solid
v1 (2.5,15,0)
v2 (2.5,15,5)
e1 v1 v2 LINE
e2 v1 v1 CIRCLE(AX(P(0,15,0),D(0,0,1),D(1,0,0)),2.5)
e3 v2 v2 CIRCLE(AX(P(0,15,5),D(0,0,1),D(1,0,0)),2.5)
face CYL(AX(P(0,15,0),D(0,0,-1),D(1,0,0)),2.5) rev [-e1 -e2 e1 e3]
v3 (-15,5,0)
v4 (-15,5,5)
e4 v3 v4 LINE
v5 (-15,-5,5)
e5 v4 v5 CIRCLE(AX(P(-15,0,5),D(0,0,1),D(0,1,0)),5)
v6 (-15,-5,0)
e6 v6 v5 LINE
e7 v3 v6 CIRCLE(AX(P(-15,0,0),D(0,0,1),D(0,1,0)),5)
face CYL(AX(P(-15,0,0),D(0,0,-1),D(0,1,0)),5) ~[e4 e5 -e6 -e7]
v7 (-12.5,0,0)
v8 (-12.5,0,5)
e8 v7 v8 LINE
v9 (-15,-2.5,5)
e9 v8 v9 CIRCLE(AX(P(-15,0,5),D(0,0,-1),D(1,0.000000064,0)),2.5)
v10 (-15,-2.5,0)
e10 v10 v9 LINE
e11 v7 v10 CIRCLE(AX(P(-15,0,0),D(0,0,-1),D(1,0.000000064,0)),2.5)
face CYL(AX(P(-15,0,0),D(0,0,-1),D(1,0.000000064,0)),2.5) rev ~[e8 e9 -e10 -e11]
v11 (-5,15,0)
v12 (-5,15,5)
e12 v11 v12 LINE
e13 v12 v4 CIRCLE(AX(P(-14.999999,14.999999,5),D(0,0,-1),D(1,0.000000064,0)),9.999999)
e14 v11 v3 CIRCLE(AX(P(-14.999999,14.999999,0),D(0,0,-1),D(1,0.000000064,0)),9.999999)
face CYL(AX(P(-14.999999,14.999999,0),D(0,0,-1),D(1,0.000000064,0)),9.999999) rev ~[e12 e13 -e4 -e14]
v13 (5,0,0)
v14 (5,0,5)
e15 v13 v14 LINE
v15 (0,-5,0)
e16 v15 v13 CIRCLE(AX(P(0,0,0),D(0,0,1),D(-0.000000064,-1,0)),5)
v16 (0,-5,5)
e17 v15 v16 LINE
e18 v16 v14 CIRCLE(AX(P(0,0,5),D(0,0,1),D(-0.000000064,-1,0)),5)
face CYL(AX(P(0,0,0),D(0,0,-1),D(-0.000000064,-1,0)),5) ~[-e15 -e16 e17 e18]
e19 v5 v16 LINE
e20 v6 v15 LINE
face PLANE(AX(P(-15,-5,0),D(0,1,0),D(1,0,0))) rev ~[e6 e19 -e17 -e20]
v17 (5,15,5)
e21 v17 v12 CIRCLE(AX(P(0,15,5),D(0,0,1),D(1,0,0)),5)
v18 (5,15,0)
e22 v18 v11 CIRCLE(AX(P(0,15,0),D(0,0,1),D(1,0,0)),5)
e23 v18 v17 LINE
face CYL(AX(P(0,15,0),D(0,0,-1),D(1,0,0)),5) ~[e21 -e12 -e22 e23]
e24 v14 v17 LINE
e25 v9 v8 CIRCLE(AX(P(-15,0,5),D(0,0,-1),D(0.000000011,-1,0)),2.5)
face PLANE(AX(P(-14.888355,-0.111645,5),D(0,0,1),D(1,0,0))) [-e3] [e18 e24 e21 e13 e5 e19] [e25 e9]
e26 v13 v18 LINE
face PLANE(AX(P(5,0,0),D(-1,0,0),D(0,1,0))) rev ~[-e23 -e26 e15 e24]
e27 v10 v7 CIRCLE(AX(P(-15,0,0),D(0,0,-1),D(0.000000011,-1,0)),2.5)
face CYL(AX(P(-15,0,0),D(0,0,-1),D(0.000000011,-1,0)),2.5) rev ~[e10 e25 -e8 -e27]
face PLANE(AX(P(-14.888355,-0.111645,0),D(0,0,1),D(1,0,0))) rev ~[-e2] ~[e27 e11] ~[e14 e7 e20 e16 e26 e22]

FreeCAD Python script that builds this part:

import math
import FreeCAD as App
import Part
import Sketcher

V = App.Vector
Q = App.Units.Quantity

doc = App.newDocument("Part")
params = doc.addObject("Spreadsheet::Sheet", "Params")
for row, (alias, value) in enumerate([
    ("sketch1_diameter", "5 mm"),
    ("sketch1_radius", "5 mm"),
    ("sketch1_radius2", "9.999999 mm"),
    ("pad1_length", "5 mm"),
], start=1):
    params.set(f"A{row}", alias)
    params.set(f"B{row}", "=" + value)
    params.setAlias(f"B{row}", alias)

body = doc.addObject("PartDesign::Body", "Body")

# Sketch on XY plane
sketch1 = body.newObject("Sketcher::SketchObject", "Sketch")
sketch1.AttachmentSupport = (doc.getObject("XY_Plane"), [""])
sketch1.MapMode = "FlatFace"
sketch1.addGeometry(Part.LineSegment(V(5, 0, 0), V(5, 15, 0)), False)
sketch1.addGeometry(Part.ArcOfCircle(Part.Circle(V(0, 15, 0), V(0, 0, 1), 5), math.radians(0), math.radians(180)), False)
sketch1.addGeometry(Part.ArcOfCircle(Part.Circle(V(-15, 15, 0), V(0, 0, 1), 10), math.radians(-90), math.radians(0)), False)
sketch1.addGeometry(Part.ArcOfCircle(Part.Circle(V(-15, 0, 0), V(0, 0, 1), 5), math.radians(90), math.radians(270)), False)
sketch1.addGeometry(Part.LineSegment(V(-15, -5, 0), V(0, -5, 0)), False)
sketch1.addGeometry(Part.ArcOfCircle(Part.Circle(V(0, 0, 0), V(0, 0, 1), 5), math.radians(-90), math.radians(0)), False)
sketch1.addGeometry(Part.ArcOfCircle(Part.Circle(V(-15, 0, 0), V(0, 0, 1), 2.5), math.radians(0), math.radians(270)), False)
sketch1.addGeometry(Part.ArcOfCircle(Part.Circle(V(-15, 0, 0), V(0, 0, 1), 2.5), math.radians(-90), math.radians(0)), False)
sketch1.addGeometry(Part.Circle(V(0, 15, 0), V(0, 0, 1), 2.5), False)
sketch1.addConstraint(Sketcher.Constraint("Tangent", 0, 2, 1, 1))
sketch1.addConstraint(Sketcher.Constraint("Tangent", 1, 2, 2, 2))
sketch1.addConstraint(Sketcher.Constraint("Tangent", 2, 1, 3, 1))
sketch1.addConstraint(Sketcher.Constraint("Tangent", 3, 2, 4, 1))
sketch1.addConstraint(Sketcher.Constraint("Tangent", 4, 2, 5, 1))
sketch1.addConstraint(Sketcher.Constraint("Tangent", 5, 2, 0, 1))
sketch1.addConstraint(Sketcher.Constraint("Tangent", 6, 1, 7, 2))
sketch1.addConstraint(Sketcher.Constraint("Coincident", 7, 1, 6, 2))
sketch1.addConstraint(Sketcher.Constraint("Vertical", 0))
sketch1.addConstraint(Sketcher.Constraint("Horizontal", 4))
sketch1.addConstraint(Sketcher.Constraint("Coincident", 5, 3, -1, 1))
sketch1.addConstraint(Sketcher.Constraint("Coincident", 6, 3, 3, 3))
sketch1.addConstraint(Sketcher.Constraint("Coincident", 8, 3, 1, 3))
sketch1.addConstraint(Sketcher.Constraint("Equal", 1, 3))
sketch1.addConstraint(Sketcher.Constraint("Equal", 3, 5))
sketch1.addConstraint(Sketcher.Constraint("Equal", 7, 8))
sketch1.addConstraint(Sketcher.Constraint("PointOnObject", 6, 1, -1))
sketch1.addConstraint(Sketcher.Constraint("Horizontal", 1, 3, 2, 3))
sketch1.addConstraint(Sketcher.Constraint("Vertical", 2, 3, 3, 3))
sketch1.addConstraint(Sketcher.Constraint("Vertical", 3, 2, 7, 1))
sketch1.addConstraint(Sketcher.Constraint("Diameter", 8, Q("5 mm")))
sketch1.addConstraint(Sketcher.Constraint("Radius", 1, Q("5 mm")))
sketch1.addConstraint(Sketcher.Constraint("Radius", 2, Q("9.999999 mm")))
sketch1.setExpression("Constraints[20]", "Params.sketch1_diameter")
sketch1.setExpression("Constraints[21]", "Params.sketch1_radius")
sketch1.setExpression("Constraints[22]", "Params.sketch1_radius2")
pad1 = body.newObject("PartDesign::Pad", "Pad")
pad1.Profile = sketch1
pad1.setExpression("Length", "Params.pad1_length")

doc.recompute()
